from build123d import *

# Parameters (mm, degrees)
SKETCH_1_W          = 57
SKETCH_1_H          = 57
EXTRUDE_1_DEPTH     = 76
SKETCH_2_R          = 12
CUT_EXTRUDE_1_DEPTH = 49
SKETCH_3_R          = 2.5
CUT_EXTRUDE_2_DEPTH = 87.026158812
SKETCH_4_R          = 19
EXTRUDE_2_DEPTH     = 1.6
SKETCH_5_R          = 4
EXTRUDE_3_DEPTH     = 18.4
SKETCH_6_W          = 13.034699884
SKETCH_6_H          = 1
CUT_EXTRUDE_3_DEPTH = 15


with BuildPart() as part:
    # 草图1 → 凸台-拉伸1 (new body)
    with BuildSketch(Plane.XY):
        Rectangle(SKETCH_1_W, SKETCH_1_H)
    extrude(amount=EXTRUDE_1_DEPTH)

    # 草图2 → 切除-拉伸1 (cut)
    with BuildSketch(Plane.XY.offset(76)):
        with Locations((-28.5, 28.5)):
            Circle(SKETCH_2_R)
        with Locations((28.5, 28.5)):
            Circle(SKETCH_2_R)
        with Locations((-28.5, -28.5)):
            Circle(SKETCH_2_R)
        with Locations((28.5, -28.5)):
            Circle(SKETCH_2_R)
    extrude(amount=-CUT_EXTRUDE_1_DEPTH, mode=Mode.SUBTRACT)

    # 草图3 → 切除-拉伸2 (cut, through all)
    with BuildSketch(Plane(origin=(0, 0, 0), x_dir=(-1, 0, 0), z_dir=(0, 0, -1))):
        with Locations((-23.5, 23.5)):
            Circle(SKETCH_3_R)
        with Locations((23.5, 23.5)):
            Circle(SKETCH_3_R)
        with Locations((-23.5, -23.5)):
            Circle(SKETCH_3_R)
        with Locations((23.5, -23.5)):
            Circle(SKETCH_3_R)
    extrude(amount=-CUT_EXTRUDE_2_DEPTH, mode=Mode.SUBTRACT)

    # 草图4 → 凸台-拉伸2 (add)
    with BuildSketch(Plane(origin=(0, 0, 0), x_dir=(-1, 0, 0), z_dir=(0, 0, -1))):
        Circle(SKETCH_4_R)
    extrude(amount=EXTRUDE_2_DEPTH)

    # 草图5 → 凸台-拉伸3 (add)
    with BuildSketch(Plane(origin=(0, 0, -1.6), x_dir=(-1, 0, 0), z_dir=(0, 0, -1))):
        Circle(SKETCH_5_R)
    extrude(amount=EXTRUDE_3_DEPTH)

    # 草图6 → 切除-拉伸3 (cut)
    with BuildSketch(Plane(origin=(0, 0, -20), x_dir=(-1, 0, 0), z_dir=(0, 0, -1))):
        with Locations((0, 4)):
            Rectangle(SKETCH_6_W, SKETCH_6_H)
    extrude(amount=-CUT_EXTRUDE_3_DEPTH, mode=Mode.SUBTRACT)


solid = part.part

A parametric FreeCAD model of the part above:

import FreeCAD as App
import Part
import Sketcher

V = App.Vector
Q = App.Units.Quantity

doc = App.newDocument("Part")
body = doc.addObject("PartDesign::Body", "Body")

sketch1 = body.newObject("Sketcher::SketchObject", "Sketch")
sketch1.AttachmentSupport = (doc.getObject("XY_Plane"), [""])
sketch1.MapMode = "FlatFace"
sketch1.addGeometry([
    Part.LineSegment(V(-28, 28, 0), V(-28, -28, 0)),
    Part.LineSegment(V(-28, -28, 0), V(28, -28, 0)),
    Part.LineSegment(V(28, -28, 0), V(28, 28, 0)),
    Part.LineSegment(V(28, 28, 0), V(-28, 28, 0)),
], False)
sketch1.addConstraint([
    Sketcher.Constraint("Coincident", 0, 2, 1, 1),
    Sketcher.Constraint("Coincident", 1, 2, 2, 1),
    Sketcher.Constraint("Coincident", 2, 2, 3, 1),
    Sketcher.Constraint("Coincident", 3, 2, 0, 1),
    Sketcher.Constraint("Vertical", 0),
    Sketcher.Constraint("Horizontal", 1),
    Sketcher.Constraint("Vertical", 2),
    Sketcher.Constraint("Horizontal", 3),
    Sketcher.Constraint("Symmetric", 0, 2, 2, 2, -1, 1),
    Sketcher.Constraint("Equal", 3, 0),
    Sketcher.Constraint("DistanceX", 1, 1, 1, 2, Q("57 mm")),
])
pad1 = body.newObject("PartDesign::Pad", "Pad")
pad1.Profile = sketch1
pad1.Length = 76

sketch2 = body.newObject("Sketcher::SketchObject", "Sketch001")
sketch2.AttachmentSupport = (doc.getObject("XY_Plane"), [""])
sketch2.MapMode = "FlatFace"
sketch2.AttachmentOffset = App.Placement(V(0, 0, 76), App.Rotation())
sketch2.addGeometry([
    Part.Circle(V(-28, 28, 0), V(0, 0, 1), 12),
    Part.Circle(V(28, 28, 0), V(0, 0, 1), 12),
    Part.Circle(V(-28, -28, 0), V(0, 0, 1), 12),
    Part.Circle(V(28, -28, 0), V(0, 0, 1), 12),
], False)
sketch2.addConstraint([
    Sketcher.Constraint("Equal", 0, 1),
    Sketcher.Constraint("Equal", 1, 2),
    Sketcher.Constraint("Equal", 2, 3),
    Sketcher.Constraint("Symmetric", 1, 3, 2, 3, -1, 1),
    Sketcher.Constraint("Symmetric", 0, 3, 3, 3, -1, 1),
    Sketcher.Constraint("Symmetric", 0, 3, 1, 3, -2),
    Sketcher.Constraint("Diameter", 0, Q("24 mm")),
    Sketcher.Constraint("DistanceX", 0, 3, 1, 3, Q("57 mm")),
    Sketcher.Constraint("DistanceY", 2, 3, 0, 3, Q("57 mm")),
])
pocket1 = body.newObject("PartDesign::Pocket", "Pocket")
pocket1.Profile = sketch2
pocket1.Length = 49

sketch3 = body.newObject("Sketcher::SketchObject", "Sketch002")
sketch3.AttachmentSupport = (doc.getObject("XY_Plane"), [""])
sketch3.MapMode = "FlatFace"
sketch3.addGeometry([
    Part.Circle(V(23.5, 23.5, 0), V(0, 0, 1), 2.5),
    Part.Circle(V(-23.5, 23.5, 0), V(0, 0, 1), 2.5),
    Part.Circle(V(23.5, -23.5, 0), V(0, 0, 1), 2.5),
    Part.Circle(V(-23.5, -23.5, 0), V(0, 0, 1), 2.5),
], False)
sketch3.addConstraint([
    Sketcher.Constraint("Equal", 0, 1),
    Sketcher.Constraint("Equal", 1, 2),
    Sketcher.Constraint("Equal", 2, 3),
    Sketcher.Constraint("Symmetric", 1, 3, 2, 3, -1, 1),
    Sketcher.Constraint("Symmetric", 0, 3, 3, 3, -1, 1),
    Sketcher.Constraint("Symmetric", 0, 3, 1, 3, -2),
    Sketcher.Constraint("Diameter", 0, Q("5 mm")),
    Sketcher.Constraint("DistanceX", 1, 3, 0, 3, Q("47 mm")),
    Sketcher.Constraint("DistanceY", 2, 3, 0, 3, Q("47 mm")),
])
pocket2 = body.newObject("PartDesign::Pocket", "Pocket001")
pocket2.Profile = sketch3
pocket2.Type = "ThroughAll"
pocket2.Reversed = True

sketch4 = body.newObject("Sketcher::SketchObject", "Sketch003")
sketch4.AttachmentSupport = (doc.getObject("XY_Plane"), [""])
sketch4.MapMode = "FlatFace"
sketch4.addGeometry(Part.Circle(V(0, 0, 0), V(0, 0, 1), 19), False)
sketch4.addConstraint([
    Sketcher.Constraint("Coincident", 0, 3, -1, 1),
    Sketcher.Constraint("Diameter", 0, Q("38 mm")),
])
pad2 = body.newObject("PartDesign::Pad", "Pad001")
pad2.Profile = sketch4
pad2.Length = 1.6
pad2.Reversed = True

sketch5 = body.newObject("Sketcher::SketchObject", "Sketch004")
sketch5.AttachmentSupport = (doc.getObject("XY_Plane"), [""])
sketch5.MapMode = "FlatFace"
sketch5.AttachmentOffset = App.Placement(V(0, 0, -1.6), App.Rotation())
sketch5.addGeometry(Part.Circle(V(0, 0, 0), V(0, 0, 1), 4), False)
sketch5.addConstraint([
    Sketcher.Constraint("Coincident", 0, 3, -1, 1),
    Sketcher.Constraint("Diameter", 0, Q("8 mm")),
])
pad3 = body.newObject("PartDesign::Pad", "Pad002")
pad3.Profile = sketch5
pad3.Length = 18.4
pad3.Reversed = True

sketch6 = body.newObject("Sketcher::SketchObject", "Sketch005")
sketch6.AttachmentSupport = (doc.getObject("XY_Plane"), [""])
sketch6.MapMode = "FlatFace"
sketch6.AttachmentOffset = App.Placement(V(0, 0, -20), App.Rotation())
sketch6.addGeometry([
    Part.LineSegment(V(6.5, 4.5, 0), V(6.5, 3.5, 0)),
    Part.LineSegment(V(6.5, 3.5, 0), V(-6.5, 3.5, 0)),
    Part.LineSegment(V(-6.5, 3.5, 0), V(-6.5, 4.5, 0)),
    Part.LineSegment(V(-6.5, 4.5, 0), V(6.5, 4.5, 0)),
], False)
sketch6.addConstraint([
    Sketcher.Constraint("Coincident", 0, 2, 1, 1),
    Sketcher.Constraint("Coincident", 1, 2, 2, 1),
    Sketcher.Constraint("Coincident", 2, 2, 3, 1),
    Sketcher.Constraint("Coincident", 3, 2, 0, 1),
    Sketcher.Constraint("Vertical", 0),
    Sketcher.Constraint("Horizontal", 1),
    Sketcher.Constraint("Vertical", 2),
    Sketcher.Constraint("Horizontal", 3),
    Sketcher.Constraint("DistanceY", 0, 2, 0, 1, Q("1 mm")),
    Sketcher.Constraint("DistanceY", -1, 1, 0, 2, Q("3.5 mm")),
    Sketcher.Constraint("DistanceX", 1, 2, 1, 1, Q("13.0347 mm")),
    Sketcher.Constraint("DistanceX", -1, 1, 0, 2, Q("6.51735 mm")),
])
pocket3 = body.newObject("PartDesign::Pocket", "Pocket002")
pocket3.Profile = sketch6
pocket3.Length = 15
pocket3.Reversed = True

doc.recompute()
